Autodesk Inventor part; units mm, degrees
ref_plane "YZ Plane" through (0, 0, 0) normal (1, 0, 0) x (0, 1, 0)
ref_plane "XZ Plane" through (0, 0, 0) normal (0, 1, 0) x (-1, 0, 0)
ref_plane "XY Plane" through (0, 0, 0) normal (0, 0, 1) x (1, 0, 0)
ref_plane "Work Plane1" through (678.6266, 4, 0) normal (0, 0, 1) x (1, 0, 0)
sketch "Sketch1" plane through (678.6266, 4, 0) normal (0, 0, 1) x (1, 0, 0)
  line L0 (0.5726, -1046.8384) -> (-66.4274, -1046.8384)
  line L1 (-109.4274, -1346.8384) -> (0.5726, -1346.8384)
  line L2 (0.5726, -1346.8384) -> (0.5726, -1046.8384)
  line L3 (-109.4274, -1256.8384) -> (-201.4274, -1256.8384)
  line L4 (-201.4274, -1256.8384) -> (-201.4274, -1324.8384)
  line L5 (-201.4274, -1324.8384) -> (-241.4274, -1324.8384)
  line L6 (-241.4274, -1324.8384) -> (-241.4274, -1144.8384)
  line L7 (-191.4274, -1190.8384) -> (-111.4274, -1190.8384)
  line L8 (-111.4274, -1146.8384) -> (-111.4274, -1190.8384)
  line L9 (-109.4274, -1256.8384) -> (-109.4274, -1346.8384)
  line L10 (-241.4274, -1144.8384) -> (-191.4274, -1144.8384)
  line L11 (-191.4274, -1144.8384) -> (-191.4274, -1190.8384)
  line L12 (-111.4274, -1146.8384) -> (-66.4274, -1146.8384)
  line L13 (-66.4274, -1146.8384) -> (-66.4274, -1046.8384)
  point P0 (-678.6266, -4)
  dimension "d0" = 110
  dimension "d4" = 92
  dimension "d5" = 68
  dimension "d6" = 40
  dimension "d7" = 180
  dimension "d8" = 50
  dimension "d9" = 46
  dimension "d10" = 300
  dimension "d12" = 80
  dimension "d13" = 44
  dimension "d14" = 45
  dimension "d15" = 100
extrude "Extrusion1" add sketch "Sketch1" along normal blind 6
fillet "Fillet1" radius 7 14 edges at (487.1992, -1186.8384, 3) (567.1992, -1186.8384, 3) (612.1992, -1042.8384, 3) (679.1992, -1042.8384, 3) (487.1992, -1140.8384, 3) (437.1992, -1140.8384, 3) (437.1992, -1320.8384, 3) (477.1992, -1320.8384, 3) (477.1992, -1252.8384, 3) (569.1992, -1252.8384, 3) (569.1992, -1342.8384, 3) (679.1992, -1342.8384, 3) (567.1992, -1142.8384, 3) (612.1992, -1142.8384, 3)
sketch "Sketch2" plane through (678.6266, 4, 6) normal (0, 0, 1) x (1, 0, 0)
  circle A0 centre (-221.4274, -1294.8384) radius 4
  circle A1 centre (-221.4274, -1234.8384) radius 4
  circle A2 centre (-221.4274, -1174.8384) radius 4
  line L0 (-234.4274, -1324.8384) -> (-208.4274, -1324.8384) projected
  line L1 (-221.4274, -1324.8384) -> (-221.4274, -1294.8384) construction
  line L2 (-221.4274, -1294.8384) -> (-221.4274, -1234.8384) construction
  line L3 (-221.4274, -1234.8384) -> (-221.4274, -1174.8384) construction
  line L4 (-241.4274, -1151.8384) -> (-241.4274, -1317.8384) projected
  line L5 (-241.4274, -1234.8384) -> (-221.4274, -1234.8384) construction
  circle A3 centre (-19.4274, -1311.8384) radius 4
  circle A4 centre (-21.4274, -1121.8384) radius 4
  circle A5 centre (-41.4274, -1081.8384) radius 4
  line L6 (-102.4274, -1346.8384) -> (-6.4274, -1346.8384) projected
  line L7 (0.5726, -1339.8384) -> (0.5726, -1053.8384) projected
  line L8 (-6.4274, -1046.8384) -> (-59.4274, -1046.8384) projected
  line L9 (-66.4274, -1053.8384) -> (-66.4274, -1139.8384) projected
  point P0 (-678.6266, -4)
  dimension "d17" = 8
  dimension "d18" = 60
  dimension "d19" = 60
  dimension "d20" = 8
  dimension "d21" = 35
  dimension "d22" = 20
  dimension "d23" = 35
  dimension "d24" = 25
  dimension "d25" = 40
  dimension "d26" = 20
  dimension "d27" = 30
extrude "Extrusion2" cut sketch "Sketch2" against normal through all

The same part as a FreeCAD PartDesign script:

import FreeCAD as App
import Part
import Sketcher
Q = App.Units.Quantity


def edges_at(feature, points):
    """Names of the edges that pass closest to the given points."""
    edges = feature.Shape.Edges
    near = lambda p: min(range(len(edges)), key=lambda i: edges[i].distToShape(Part.Vertex(*p))[0])
    return sorted({f"Edge{near(p) + 1}" for p in points})


def add_polygon(sketch, points):
    """Adds a closed chain of lines whose ends are joined by coincident constraints."""
    first, n = sketch.GeometryCount, len(points)
    for a, b in zip(points, points[1:] + points[:1]):
        sketch.addGeometry(Part.LineSegment(App.Vector(*a, 0), App.Vector(*b, 0)), False)
    for i in range(n):
        sketch.addConstraint(Sketcher.Constraint("Coincident", first + i, 2, first + (i + 1) % n, 1))

doc = App.newDocument("Part")
body = doc.addObject("PartDesign::Body", "Body")

# Sketch on XY plane
sketch1 = body.newObject("Sketcher::SketchObject", "Sketch")
sketch1.AttachmentSupport = (doc.getObject("XY_Plane"), [""])
sketch1.MapMode = "FlatFace"
add_polygon(sketch1, [(679.1992, -1342.8384), (679.1992, -1042.8384), (612.1992, -1042.8384), (612.1992, -1142.8384), (567.1992, -1142.8384), (567.1992, -1186.8384), (487.1992, -1186.8384), (487.1992, -1140.8384), (437.1992, -1140.8384), (437.1992, -1320.8384), (477.1992, -1320.8384), (477.1992, -1252.8384), (569.1992, -1252.8384), (569.1992, -1342.8384)])  # lines 0-13
sketch1.addConstraint(Sketcher.Constraint("Vertical", 0))
sketch1.addConstraint(Sketcher.Constraint("Horizontal", 1))
sketch1.addConstraint(Sketcher.Constraint("Vertical", 2))
sketch1.addConstraint(Sketcher.Constraint("Horizontal", 3))
sketch1.addConstraint(Sketcher.Constraint("Vertical", 4))
sketch1.addConstraint(Sketcher.Constraint("Horizontal", 5))
sketch1.addConstraint(Sketcher.Constraint("Vertical", 6))
sketch1.addConstraint(Sketcher.Constraint("Horizontal", 7))
sketch1.addConstraint(Sketcher.Constraint("Vertical", 8))
sketch1.addConstraint(Sketcher.Constraint("Horizontal", 9))
sketch1.addConstraint(Sketcher.Constraint("Vertical", 10))
sketch1.addConstraint(Sketcher.Constraint("Horizontal", 11))
sketch1.addConstraint(Sketcher.Constraint("Vertical", 12))
sketch1.addConstraint(Sketcher.Constraint("Horizontal", 13))
sketch1.addConstraint(Sketcher.Constraint("DistanceX", 3, 2, 3, 1, Q("45 mm")))
sketch1.addConstraint(Sketcher.Constraint("DistanceX", 5, 2, 5, 1, Q("80 mm")))
sketch1.addConstraint(Sketcher.Constraint("DistanceX", 7, 2, 7, 1, Q("50 mm")))
sketch1.addConstraint(Sketcher.Constraint("DistanceX", 9, 1, 9, 2, Q("40 mm")))
sketch1.addConstraint(Sketcher.Constraint("DistanceX", 11, 1, 11, 2, Q("92 mm")))
sketch1.addConstraint(Sketcher.Constraint("DistanceX", 13, 1, 13, 2, Q("110 mm")))
sketch1.addConstraint(Sketcher.Constraint("DistanceY", 0, 1, 0, 2, Q("300 mm")))
sketch1.addConstraint(Sketcher.Constraint("DistanceY", 2, 2, 2, 1, Q("100 mm")))
sketch1.addConstraint(Sketcher.Constraint("DistanceY", 4, 2, 4, 1, Q("44 mm")))
sketch1.addConstraint(Sketcher.Constraint("DistanceY", 6, 1, 6, 2, Q("46 mm")))
sketch1.addConstraint(Sketcher.Constraint("DistanceY", 8, 2, 8, 1, Q("180 mm")))
sketch1.addConstraint(Sketcher.Constraint("DistanceY", 10, 1, 10, 2, Q("68 mm")))
sketch1.addConstraint(Sketcher.Constraint("DistanceX", -1, 1, 0, 2, Q("679.1992 mm")))
sketch1.addConstraint(Sketcher.Constraint("DistanceY", 0, 2, -1, 1, Q("1042.8384 mm")))
pad1 = body.newObject("PartDesign::Pad", "Pad")
pad1.Profile = sketch1
pad1.Length = 6
doc.recompute()

fillet = body.newObject("PartDesign::Fillet", "Fillet")
fillet.Base = (pad1, edges_at(pad1, [
    (487.199, -1186.838, 3),
    (567.199, -1186.838, 3),
    (612.199, -1042.838, 3),
    (679.199, -1042.838, 3),
    (487.199, -1140.838, 3),
    (437.199, -1140.838, 3),
    (437.199, -1320.838, 3),
    (477.199, -1320.838, 3),
    (477.199, -1252.838, 3),
    (569.199, -1252.838, 3),
    (569.199, -1342.838, 3),
    (679.199, -1342.838, 3),
    (567.199, -1142.838, 3),
    (612.199, -1142.838, 3),
]))
fillet.Radius = 7

# Sketch on XY plane
sketch2 = body.newObject("Sketcher::SketchObject", "Sketch001")
sketch2.AttachmentSupport = (doc.getObject("XY_Plane"), [""])
sketch2.MapMode = "FlatFace"
sketch2.AttachmentOffset = App.Placement(App.Vector(0, 0, 6), App.Rotation())
sketch2.addGeometry(Part.Circle(App.Vector(457.1992, -1290.8384, 0), App.Vector(0, 0, 1), 4), False)
sketch2.addGeometry(Part.Circle(App.Vector(457.1992, -1230.8384, 0), App.Vector(0, 0, 1), 4), False)
sketch2.addGeometry(Part.Circle(App.Vector(457.1992, -1170.8384, 0), App.Vector(0, 0, 1), 4), False)
sketch2.addGeometry(Part.Circle(App.Vector(659.1992, -1307.8384, 0), App.Vector(0, 0, 1), 4), False)
sketch2.addGeometry(Part.Circle(App.Vector(657.1992, -1117.8384, 0), App.Vector(0, 0, 1), 4), False)
sketch2.addGeometry(Part.Circle(App.Vector(637.1992, -1077.8384, 0), App.Vector(0, 0, 1), 4), False)
sketch2.addConstraint(Sketcher.Constraint("Equal", 0, 1))
sketch2.addConstraint(Sketcher.Constraint("Equal", 1, 2))
sketch2.addConstraint(Sketcher.Constraint("Equal", 2, 3))
sketch2.addConstraint(Sketcher.Constraint("Equal", 3, 4))
sketch2.addConstraint(Sketcher.Constraint("Equal", 4, 5))
sketch2.addConstraint(Sketcher.Constraint("Vertical", 0, 3, 1, 3))
sketch2.addConstraint(Sketcher.Constraint("Vertical", 1, 3, 2, 3))
sketch2.addConstraint(Sketcher.Constraint("Diameter", 0, Q("8 mm")))
sketch2.addConstraint(Sketcher.Constraint("DistanceY", 0, 3, 1, 3, Q("60 mm")))
sketch2.addConstraint(Sketcher.Constraint("DistanceY", 1, 3, 2, 3, Q("60 mm")))
sketch2.addConstraint(Sketcher.Constraint("DistanceX", 5, 3, 4, 3, Q("20 mm")))
sketch2.addConstraint(Sketcher.Constraint("DistanceY", 4, 3, 5, 3, Q("40 mm")))
sketch2.addConstraint(Sketcher.Constraint("DistanceX", 0, 3, 3, 3, Q("202 mm")))
sketch2.addConstraint(Sketcher.Constraint("DistanceY", 3, 3, 0, 3, Q("17 mm")))
sketch2.addConstraint(Sketcher.Constraint("DistanceX", 4, 3, 3, 3, Q("2 mm")))
sketch2.addConstraint(Sketcher.Constraint("DistanceY", 3, 3, 4, 3, Q("190 mm")))
sketch2.addConstraint(Sketcher.Constraint("DistanceX", -1, 1, 0, 3, Q("457.1992 mm")))
sketch2.addConstraint(Sketcher.Constraint("DistanceY", 0, 3, -1, 1, Q("1290.8384 mm")))
pocket1 = body.newObject("PartDesign::Pocket", "Pocket")
pocket1.Profile = sketch2
pocket1.Type = "ThroughAll"

doc.recompute()
